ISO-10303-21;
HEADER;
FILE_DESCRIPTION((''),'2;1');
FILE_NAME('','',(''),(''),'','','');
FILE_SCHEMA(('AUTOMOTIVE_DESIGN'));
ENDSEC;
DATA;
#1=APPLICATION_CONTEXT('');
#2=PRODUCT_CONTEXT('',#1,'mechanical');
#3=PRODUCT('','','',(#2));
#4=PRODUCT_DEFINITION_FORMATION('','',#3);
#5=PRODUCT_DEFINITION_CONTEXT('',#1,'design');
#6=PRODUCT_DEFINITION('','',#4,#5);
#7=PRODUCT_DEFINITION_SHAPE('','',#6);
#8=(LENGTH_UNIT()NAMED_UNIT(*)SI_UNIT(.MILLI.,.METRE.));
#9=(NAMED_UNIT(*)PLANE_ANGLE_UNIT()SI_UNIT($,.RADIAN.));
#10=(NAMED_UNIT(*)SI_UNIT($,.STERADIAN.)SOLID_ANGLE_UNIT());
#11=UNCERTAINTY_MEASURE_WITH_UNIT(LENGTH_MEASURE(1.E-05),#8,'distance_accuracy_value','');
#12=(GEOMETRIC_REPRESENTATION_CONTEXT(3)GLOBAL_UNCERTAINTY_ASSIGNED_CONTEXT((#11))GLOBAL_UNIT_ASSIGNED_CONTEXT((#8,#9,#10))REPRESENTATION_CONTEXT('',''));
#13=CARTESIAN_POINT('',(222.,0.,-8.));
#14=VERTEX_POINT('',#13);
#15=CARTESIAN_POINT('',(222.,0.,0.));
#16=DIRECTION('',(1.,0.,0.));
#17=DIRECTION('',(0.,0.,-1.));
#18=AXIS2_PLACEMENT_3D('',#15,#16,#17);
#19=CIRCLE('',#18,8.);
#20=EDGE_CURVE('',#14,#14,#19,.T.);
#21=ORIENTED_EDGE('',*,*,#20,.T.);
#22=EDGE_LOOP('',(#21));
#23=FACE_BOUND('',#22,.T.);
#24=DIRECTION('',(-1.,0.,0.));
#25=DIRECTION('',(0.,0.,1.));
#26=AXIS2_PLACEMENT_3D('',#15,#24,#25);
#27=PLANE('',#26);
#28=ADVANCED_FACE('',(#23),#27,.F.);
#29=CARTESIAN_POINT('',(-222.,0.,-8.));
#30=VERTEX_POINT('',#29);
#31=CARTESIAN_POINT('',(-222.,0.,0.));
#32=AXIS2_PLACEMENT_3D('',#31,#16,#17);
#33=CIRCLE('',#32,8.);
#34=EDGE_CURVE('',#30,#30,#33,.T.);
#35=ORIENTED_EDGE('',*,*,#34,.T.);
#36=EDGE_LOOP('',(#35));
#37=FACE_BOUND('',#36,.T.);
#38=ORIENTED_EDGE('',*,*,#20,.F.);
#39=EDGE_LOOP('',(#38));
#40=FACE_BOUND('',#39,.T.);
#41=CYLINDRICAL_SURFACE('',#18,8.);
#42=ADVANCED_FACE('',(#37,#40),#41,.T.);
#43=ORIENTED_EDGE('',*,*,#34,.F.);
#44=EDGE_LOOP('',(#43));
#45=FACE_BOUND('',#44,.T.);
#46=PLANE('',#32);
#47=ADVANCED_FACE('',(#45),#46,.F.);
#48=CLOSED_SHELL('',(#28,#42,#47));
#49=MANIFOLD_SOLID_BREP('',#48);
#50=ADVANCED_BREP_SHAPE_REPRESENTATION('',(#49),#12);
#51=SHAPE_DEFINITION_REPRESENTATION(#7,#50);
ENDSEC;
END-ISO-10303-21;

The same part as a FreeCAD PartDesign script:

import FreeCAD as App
import Part
import Sketcher

V = App.Vector
Q = App.Units.Quantity


def add_polygon(sketch, points):
    """Adds a closed chain of lines whose ends are joined by coincident constraints."""
    first, n = sketch.GeometryCount, len(points)
    for a, b in zip(points, points[1:] + points[:1]):
        sketch.addGeometry(Part.LineSegment(App.Vector(*a, 0), App.Vector(*b, 0)), False)
    for i in range(n):
        sketch.addConstraint(Sketcher.Constraint("Coincident", first + i, 2, first + (i + 1) % n, 1))

doc = App.newDocument("Part")
params = doc.addObject("Spreadsheet::Sheet", "Params")
for row, (alias, value) in enumerate([
    ("sketch1_width", "444 mm"),
    ("sketch1_height", "8 mm"),
    ("revolution_angle", "360 deg"),
], start=1):
    params.set(f"A{row}", alias)
    params.set(f"B{row}", "=" + value)
    params.setAlias(f"B{row}", alias)

body = doc.addObject("PartDesign::Body", "Body")

sketch1 = body.newObject("Sketcher::SketchObject", "Sketch")
sketch1.AttachmentSupport = (doc.getObject("XZ_Plane"), [""])
sketch1.MapMode = "FlatFace"
add_polygon(sketch1, [(222, 8), (222, 0), (-222, 0), (-222, 8)])
sketch1.addConstraint([
    Sketcher.Constraint("Vertical", 0),
    Sketcher.Constraint("Horizontal", 1),
    Sketcher.Constraint("Vertical", 2),
    Sketcher.Constraint("Horizontal", 3),
    Sketcher.Constraint("Symmetric", 0, 2, 1, 2, -1, 1),
    Sketcher.Constraint("DistanceX", 1, 2, 1, 1, Q("444 mm")),
    Sketcher.Constraint("DistanceY", 0, 2, 0, 1, Q("8 mm")),
])
sketch1.setExpression("Constraints[9]", "Params.sketch1_width")
sketch1.setExpression("Constraints[10]", "Params.sketch1_height")
revolution = body.newObject("PartDesign::Revolution", "Revolution")
revolution.Profile = sketch1
revolution.ReferenceAxis = (sketch1, ["H_Axis"])
revolution.setExpression("Angle", "Params.revolution_angle")

doc.recompute()
